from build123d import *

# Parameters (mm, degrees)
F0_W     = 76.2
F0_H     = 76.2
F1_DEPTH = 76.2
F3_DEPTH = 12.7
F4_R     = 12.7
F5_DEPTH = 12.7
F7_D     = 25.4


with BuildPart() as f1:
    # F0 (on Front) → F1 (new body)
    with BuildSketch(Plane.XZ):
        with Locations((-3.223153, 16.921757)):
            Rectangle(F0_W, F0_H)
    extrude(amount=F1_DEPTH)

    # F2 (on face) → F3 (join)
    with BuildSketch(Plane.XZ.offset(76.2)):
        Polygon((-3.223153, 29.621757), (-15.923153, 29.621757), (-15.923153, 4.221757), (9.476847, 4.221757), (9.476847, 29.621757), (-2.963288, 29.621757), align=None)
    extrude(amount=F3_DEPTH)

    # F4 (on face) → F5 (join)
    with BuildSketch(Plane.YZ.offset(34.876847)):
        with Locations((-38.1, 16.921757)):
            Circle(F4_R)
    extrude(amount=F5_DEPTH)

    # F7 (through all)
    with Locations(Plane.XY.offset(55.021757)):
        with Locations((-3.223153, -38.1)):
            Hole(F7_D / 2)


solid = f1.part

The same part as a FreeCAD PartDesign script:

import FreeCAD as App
import Part
import Sketcher
from FreeCAD import Vector
Q = App.Units.Quantity

doc = App.newDocument("Part")
params = doc.addObject("Spreadsheet::Sheet", "Params")
for row, (alias, value) in enumerate([
    ("sketch1_width", "3 in"),
    ("pad1_length", "3 in"),
    ("sketch2_width", "1 in"),
    ("pad2_length", "0.5 in"),
    ("sketch3_diameter", "1 in"),
    ("pad3_length", "0.5 in"),
    ("sketch4_diameter", "1 in"),
    ("hole_diameter", "1 in"),
], start=1):
    params.set(f"A{row}", alias)
    params.set(f"B{row}", "=" + value)
    params.setAlias(f"B{row}", alias)

body = doc.addObject("PartDesign::Body", "Body")

# Sketch on XZ plane
sketch1 = body.newObject("Sketcher::SketchObject", "Sketch")
sketch1.AttachmentSupport = (doc.getObject("XZ_Plane"), [""])
sketch1.MapMode = "FlatFace"
sketch1.addGeometry([
    Part.LineSegment(Vector(-41, 55, 0), Vector(-41, -21, 0)),
    Part.LineSegment(Vector(-41, -21, 0), Vector(35, -21, 0)),
    Part.LineSegment(Vector(35, -21, 0), Vector(35, 55, 0)),
    Part.LineSegment(Vector(35, 55, 0), Vector(-41, 55, 0)),
], False)
sketch1.addConstraint([
    Sketcher.Constraint("Coincident", 0, 2, 1, 1),
    Sketcher.Constraint("Coincident", 1, 2, 2, 1),
    Sketcher.Constraint("Coincident", 2, 2, 3, 1),
    Sketcher.Constraint("Coincident", 3, 2, 0, 1),
    Sketcher.Constraint("Vertical", 0),
    Sketcher.Constraint("Horizontal", 1),
    Sketcher.Constraint("Vertical", 2),
    Sketcher.Constraint("Horizontal", 3),
    Sketcher.Constraint("Equal", 3, 0),
    Sketcher.Constraint("DistanceX", 1, 1, 1, 2, Q("3 in")),
    Sketcher.Constraint("DistanceX", 0, 2, -1, 1, 41.323153),
    Sketcher.Constraint("DistanceY", 0, 2, -1, 1, 21.178243),
])
sketch1.setExpression("Constraints[9]", "Params.sketch1_width")
pad1 = body.newObject("PartDesign::Pad", "Pad")
pad1.Profile = sketch1
pad1.setExpression("Length", "Params.pad1_length")

# Sketch on XZ plane
sketch2 = body.newObject("Sketcher::SketchObject", "Sketch001")
sketch2.AttachmentSupport = (doc.getObject("XZ_Plane"), [""])
sketch2.MapMode = "FlatFace"
sketch2.AttachmentOffset = App.Placement(Vector(0, 0, 3 * 25.4), App.Rotation())
sketch2.addGeometry([
    Part.LineSegment(Vector(-16, 30, 0), Vector(-16, 4, 0)),
    Part.LineSegment(Vector(-16, 4, 0), Vector(9, 4, 0)),
    Part.LineSegment(Vector(9, 4, 0), Vector(9, 30, 0)),
    Part.LineSegment(Vector(9, 30, 0), Vector(-16, 30, 0)),
], False)
sketch2.addConstraint([
    Sketcher.Constraint("Coincident", 0, 2, 1, 1),
    Sketcher.Constraint("Coincident", 1, 2, 2, 1),
    Sketcher.Constraint("Coincident", 2, 2, 3, 1),
    Sketcher.Constraint("Coincident", 3, 2, 0, 1),
    Sketcher.Constraint("Vertical", 0),
    Sketcher.Constraint("Horizontal", 1),
    Sketcher.Constraint("Vertical", 2),
    Sketcher.Constraint("Horizontal", 3),
    Sketcher.Constraint("Equal", 3, 0),
    Sketcher.Constraint("DistanceX", 1, 1, 1, 2, Q("1 in")),
    Sketcher.Constraint("DistanceX", 0, 2, -1, 1, 15.923153),
    Sketcher.Constraint("DistanceY", -1, 1, 0, 2, 4.221757),
])
sketch2.setExpression("Constraints[9]", "Params.sketch2_width")
pad2 = body.newObject("PartDesign::Pad", "Pad001")
pad2.Profile = sketch2
pad2.setExpression("Length", "Params.pad2_length")

# Sketch on YZ plane
sketch3 = body.newObject("Sketcher::SketchObject", "Sketch002")
sketch3.AttachmentSupport = (doc.getObject("YZ_Plane"), [""])
sketch3.MapMode = "FlatFace"
sketch3.AttachmentOffset = App.Placement(Vector(0, 0, 34.876847), App.Rotation())
sketch3.addGeometry(Part.Circle(Vector(-38, 17, 0), Vector(0, 0, 1), 13), False)
sketch3.addConstraint([
    Sketcher.Constraint("Diameter", 0, Q("1 in")),
    Sketcher.Constraint("DistanceX", 0, 3, -1, 1, Q("1.5 in")),
    Sketcher.Constraint("DistanceY", -1, 1, 0, 3, 16.921757),
])
sketch3.setExpression("Constraints[0]", "Params.sketch3_diameter")
pad3 = body.newObject("PartDesign::Pad", "Pad002")
pad3.Profile = sketch3
pad3.setExpression("Length", "Params.pad3_length")

# Sketch on XY plane
sketch4 = body.newObject("Sketcher::SketchObject", "Sketch003")
sketch4.AttachmentSupport = (doc.getObject("XY_Plane"), [""])
sketch4.MapMode = "FlatFace"
sketch4.AttachmentOffset = App.Placement(Vector(0, 0, 55.021757), App.Rotation())
sketch4.addGeometry(Part.Circle(Vector(-3, -38, 0), Vector(0, 0, 1), 13), False)
sketch4.addConstraint([
    Sketcher.Constraint("Diameter", 0, Q("1 in")),
    Sketcher.Constraint("DistanceY", 0, 3, -1, 1, Q("1.5 in")),
    Sketcher.Constraint("DistanceX", 0, 3, -1, 1, 3.223153),
])
sketch4.setExpression("Constraints[0]", "Params.sketch4_diameter")
doc.recompute()
hole = body.newObject("PartDesign::Hole", "Hole")
hole.Profile = sketch4
hole.ThreadType = "None"
hole.setExpression("Diameter", "Params.hole_diameter")
hole.DepthType = "ThroughAll"

doc.recompute()
